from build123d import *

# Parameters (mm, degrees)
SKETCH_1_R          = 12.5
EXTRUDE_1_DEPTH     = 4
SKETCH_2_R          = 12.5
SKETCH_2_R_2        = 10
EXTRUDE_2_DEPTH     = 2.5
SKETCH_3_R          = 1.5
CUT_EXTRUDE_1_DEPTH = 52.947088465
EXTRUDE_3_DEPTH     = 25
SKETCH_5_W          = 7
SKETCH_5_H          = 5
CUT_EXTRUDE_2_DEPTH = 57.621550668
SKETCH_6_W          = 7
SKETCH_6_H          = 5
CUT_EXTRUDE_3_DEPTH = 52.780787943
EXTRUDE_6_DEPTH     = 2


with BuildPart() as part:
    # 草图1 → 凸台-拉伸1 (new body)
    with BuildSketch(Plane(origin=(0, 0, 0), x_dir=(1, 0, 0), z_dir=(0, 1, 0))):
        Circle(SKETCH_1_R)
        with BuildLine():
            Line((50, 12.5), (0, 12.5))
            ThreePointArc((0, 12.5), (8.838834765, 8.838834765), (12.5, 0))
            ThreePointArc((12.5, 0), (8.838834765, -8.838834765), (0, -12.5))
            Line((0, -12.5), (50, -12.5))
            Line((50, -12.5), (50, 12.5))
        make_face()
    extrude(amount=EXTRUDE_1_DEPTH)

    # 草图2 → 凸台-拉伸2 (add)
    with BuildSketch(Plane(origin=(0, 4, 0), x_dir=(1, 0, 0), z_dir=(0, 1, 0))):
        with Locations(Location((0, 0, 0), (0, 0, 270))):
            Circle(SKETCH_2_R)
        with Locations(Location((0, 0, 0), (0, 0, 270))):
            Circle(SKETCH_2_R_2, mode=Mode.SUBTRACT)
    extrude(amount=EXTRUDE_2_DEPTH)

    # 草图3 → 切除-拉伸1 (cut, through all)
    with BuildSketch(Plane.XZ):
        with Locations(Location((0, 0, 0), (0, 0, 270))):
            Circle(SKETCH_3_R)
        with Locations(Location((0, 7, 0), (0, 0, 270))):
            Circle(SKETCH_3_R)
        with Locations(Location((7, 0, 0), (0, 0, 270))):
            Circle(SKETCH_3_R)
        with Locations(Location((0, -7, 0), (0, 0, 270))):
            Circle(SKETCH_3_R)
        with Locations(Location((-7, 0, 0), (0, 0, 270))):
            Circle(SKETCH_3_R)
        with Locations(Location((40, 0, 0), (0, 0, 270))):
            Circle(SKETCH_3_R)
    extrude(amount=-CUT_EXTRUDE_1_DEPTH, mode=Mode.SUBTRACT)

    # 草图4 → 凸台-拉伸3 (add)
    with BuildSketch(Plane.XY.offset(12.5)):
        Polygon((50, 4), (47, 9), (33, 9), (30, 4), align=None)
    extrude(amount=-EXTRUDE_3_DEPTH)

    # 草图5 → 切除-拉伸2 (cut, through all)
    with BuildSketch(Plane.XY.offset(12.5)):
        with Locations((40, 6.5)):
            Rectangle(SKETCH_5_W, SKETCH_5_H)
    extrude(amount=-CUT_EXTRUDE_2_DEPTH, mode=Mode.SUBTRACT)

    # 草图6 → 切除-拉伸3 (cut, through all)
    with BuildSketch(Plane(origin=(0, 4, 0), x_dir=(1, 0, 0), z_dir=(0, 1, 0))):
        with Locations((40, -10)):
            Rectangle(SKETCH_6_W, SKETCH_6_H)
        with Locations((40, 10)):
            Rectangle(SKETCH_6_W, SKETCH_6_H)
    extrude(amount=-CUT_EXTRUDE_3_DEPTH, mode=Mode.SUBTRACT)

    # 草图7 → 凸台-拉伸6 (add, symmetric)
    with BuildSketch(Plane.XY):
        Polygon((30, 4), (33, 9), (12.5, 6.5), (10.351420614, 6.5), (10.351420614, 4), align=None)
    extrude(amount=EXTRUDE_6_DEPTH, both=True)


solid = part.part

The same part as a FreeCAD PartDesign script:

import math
import FreeCAD as App
import Part
import Sketcher

V = App.Vector
Q = App.Units.Quantity


def add_polygon(sketch, points):
    """Adds a closed chain of lines whose ends are joined by coincident constraints."""
    first, n = sketch.GeometryCount, len(points)
    for a, b in zip(points, points[1:] + points[:1]):
        sketch.addGeometry(Part.LineSegment(App.Vector(*a, 0), App.Vector(*b, 0)), False)
    for i in range(n):
        sketch.addConstraint(Sketcher.Constraint("Coincident", first + i, 2, first + (i + 1) % n, 1))

doc = App.newDocument("Part")
body = doc.addObject("PartDesign::Body", "Body")

# Sketch on XZ plane
sketch1 = doc.addObject("Sketcher::SketchObject", "Sketch")
body.addObject(sketch1)
sketch1.AttachmentSupport = (doc.XZ_Plane, [""])
sketch1.MapMode = "FlatFace"
sketch1.addGeometry(Part.ArcOfCircle(Part.Circle(V(0, 0, 0), V(0, 0, 1), 12), math.radians(90), math.radians(270)), False)
sketch1.addGeometry(Part.LineSegment(V(0, 12, 0), V(50, 12, 0)), False)
sketch1.addGeometry(Part.LineSegment(V(50, 12, 0), V(50, -12, 0)), False)
sketch1.addGeometry(Part.LineSegment(V(50, -12, 0), V(0, -12, 0)), False)
sketch1.addConstraint(Sketcher.Constraint("Tangent", 0, 1, 1, 1))
sketch1.addConstraint(Sketcher.Constraint("Coincident", 1, 2, 2, 1))
sketch1.addConstraint(Sketcher.Constraint("Coincident", 2, 2, 3, 1))
sketch1.addConstraint(Sketcher.Constraint("Tangent", 3, 2, 0, 2))
sketch1.addConstraint(Sketcher.Constraint("Horizontal", 1))
sketch1.addConstraint(Sketcher.Constraint("Vertical", 2))
sketch1.addConstraint(Sketcher.Constraint("Horizontal", 3))
sketch1.addConstraint(Sketcher.Constraint("Coincident", 0, 3, -1, 1))
sketch1.addConstraint(Sketcher.Constraint("Radius", 0, Q("12.5 mm")))
sketch1.addConstraint(Sketcher.Constraint("DistanceX", 1, 1, 1, 2, Q("50 mm")))
pad1 = doc.addObject("PartDesign::Pad", "Pad")
body.addObject(pad1)
pad1.Profile = sketch1
pad1.Length = 4
pad1.Reversed = True

# Sketch on XZ plane
sketch2 = doc.addObject("Sketcher::SketchObject", "Sketch001")
body.addObject(sketch2)
sketch2.AttachmentSupport = (doc.XZ_Plane, [""])
sketch2.MapMode = "FlatFace"
sketch2.AttachmentOffset = App.Placement(V(0, 0, -4), App.Rotation())
sketch2.addGeometry(Part.Circle(V(0, 0, 0), V(0, 0, 1), 12), False)
sketch2.addGeometry(Part.Circle(V(0, 0, 0), V(0, 0, 1), 10), False)
sketch2.addConstraint(Sketcher.Constraint("Coincident", 0, 3, -1, 1))
sketch2.addConstraint(Sketcher.Constraint("Coincident", 1, 3, -1, 1))
sketch2.addConstraint(Sketcher.Constraint("Diameter", 0, Q("25 mm")))
sketch2.addConstraint(Sketcher.Constraint("Diameter", 1, Q("20 mm")))
pad2 = doc.addObject("PartDesign::Pad", "Pad001")
body.addObject(pad2)
pad2.Profile = sketch2
pad2.Length = 2.5
pad2.Reversed = True

# Sketch on XZ plane
sketch3 = doc.addObject("Sketcher::SketchObject", "Sketch002")
body.addObject(sketch3)
sketch3.AttachmentSupport = (doc.XZ_Plane, [""])
sketch3.MapMode = "FlatFace"
sketch3.addGeometry(Part.Circle(V(0, 0, 0), V(0, 0, 1), 1.5), False)
sketch3.addGeometry(Part.Circle(V(0, 7, 0), V(0, 0, 1), 1.5), False)
sketch3.addGeometry(Part.Circle(V(7, 0, 0), V(0, 0, 1), 1.5), False)
sketch3.addGeometry(Part.Circle(V(0, -7, 0), V(0, 0, 1), 1.5), False)
sketch3.addGeometry(Part.Circle(V(-7, 0, 0), V(0, 0, 1), 1.5), False)
sketch3.addGeometry(Part.Circle(V(40, 0, 0), V(0, 0, 1), 1.5), False)
sketch3.addConstraint(Sketcher.Constraint("Coincident", 0, 3, -1, 1))
sketch3.addConstraint(Sketcher.Constraint("Equal", 0, 1))
sketch3.addConstraint(Sketcher.Constraint("Equal", 1, 2))
sketch3.addConstraint(Sketcher.Constraint("Equal", 2, 3))
sketch3.addConstraint(Sketcher.Constraint("Equal", 3, 4))
sketch3.addConstraint(Sketcher.Constraint("Equal", 4, 5))
sketch3.addConstraint(Sketcher.Constraint("Symmetric", 1, 3, 3, 3, -1, 1))
sketch3.addConstraint(Sketcher.Constraint("Symmetric", 2, 3, 4, 3, -1, 1))
sketch3.addConstraint(Sketcher.Constraint("PointOnObject", 1, 3, -2))
sketch3.addConstraint(Sketcher.Constraint("PointOnObject", 2, 3, -1))
sketch3.addConstraint(Sketcher.Constraint("PointOnObject", 5, 3, -1))
sketch3.addConstraint(Sketcher.Constraint("Diameter", 0, Q("3 mm")))
sketch3.addConstraint(Sketcher.Constraint("DistanceY", -1, 1, 1, 3, Q("7 mm")))
sketch3.addConstraint(Sketcher.Constraint("DistanceX", -1, 1, 2, 3, Q("7 mm")))
sketch3.addConstraint(Sketcher.Constraint("DistanceX", -1, 1, 5, 3, Q("40 mm")))
pocket1 = doc.addObject("PartDesign::Pocket", "Pocket")
body.addObject(pocket1)
pocket1.Profile = sketch3
pocket1.Type = "ThroughAll"

# Sketch on XY plane
sketch4 = doc.addObject("Sketcher::SketchObject", "Sketch003")
body.addObject(sketch4)
sketch4.AttachmentSupport = (doc.XY_Plane, [""])
sketch4.MapMode = "FlatFace"
sketch4.AttachmentOffset = App.Placement(V(0, 0, 12.5), App.Rotation())
add_polygon(sketch4, [(50, 4), (47, 9), (33, 9), (30, 4)])  # lines 0-3
sketch4.addConstraint(Sketcher.Constraint("Horizontal", 1))
sketch4.addConstraint(Sketcher.Constraint("Horizontal", 3))
sketch4.addConstraint(Sketcher.Constraint("Equal", 0, 2))
sketch4.addConstraint(Sketcher.Constraint("DistanceX", 1, 2, 1, 1, Q("14 mm")))
sketch4.addConstraint(Sketcher.Constraint("DistanceX", 3, 1, 3, 2, Q("20 mm")))
sketch4.addConstraint(Sketcher.Constraint("DistanceX", -1, 1, 0, 2, Q("47 mm")))
sketch4.addConstraint(Sketcher.Constraint("DistanceY", -1, 1, 0, 2, Q("9 mm")))
sketch4.addConstraint(Sketcher.Constraint("DistanceY", -1, 1, 2, 2, Q("4 mm")))
pad3 = doc.addObject("PartDesign::Pad", "Pad002")
body.addObject(pad3)
pad3.Profile = sketch4
pad3.Length = 25
pad3.Reversed = True

# Sketch on XY plane
sketch5 = doc.addObject("Sketcher::SketchObject", "Sketch004")
body.addObject(sketch5)
sketch5.AttachmentSupport = (doc.XY_Plane, [""])
sketch5.MapMode = "FlatFace"
sketch5.AttachmentOffset = App.Placement(V(0, 0, 12.5), App.Rotation())
add_polygon(sketch5, [(36, 9), (36, 4), (44, 4), (44, 9)])  # lines 0-3
sketch5.addConstraint(Sketcher.Constraint("Vertical", 0))
sketch5.addConstraint(Sketcher.Constraint("Horizontal", 1))
sketch5.addConstraint(Sketcher.Constraint("Vertical", 2))
sketch5.addConstraint(Sketcher.Constraint("Horizontal", 3))
sketch5.addConstraint(Sketcher.Constraint("DistanceX", 1, 1, 1, 2, Q("7 mm")))
sketch5.addConstraint(Sketcher.Constraint("DistanceY", 0, 2, 0, 1, Q("5 mm")))
sketch5.addConstraint(Sketcher.Constraint("DistanceY", -1, 1, 0, 2, Q("4 mm")))
sketch5.addConstraint(Sketcher.Constraint("DistanceX", -1, 1, 0, 2, Q("36.5 mm")))
pocket2 = doc.addObject("PartDesign::Pocket", "Pocket001")
body.addObject(pocket2)
pocket2.Profile = sketch5
pocket2.Type = "ThroughAll"

# Sketch on XZ plane
sketch6 = doc.addObject("Sketcher::SketchObject", "Sketch005")
body.addObject(sketch6)
sketch6.AttachmentSupport = (doc.XZ_Plane, [""])
sketch6.MapMode = "FlatFace"
sketch6.AttachmentOffset = App.Placement(V(0, 0, -4), App.Rotation())
add_polygon(sketch6, [(36, 8), (36, 12), (44, 12), (44, 8)])  # lines 0-3
add_polygon(sketch6, [(36, -12), (36, -8), (44, -8), (44, -12)])  # lines 4-7
sketch6.addConstraint(Sketcher.Constraint("Vertical", 0))
sketch6.addConstraint(Sketcher.Constraint("Horizontal", 1))
sketch6.addConstraint(Sketcher.Constraint("Vertical", 2))
sketch6.addConstraint(Sketcher.Constraint("Horizontal", 3))
sketch6.addConstraint(Sketcher.Constraint("Vertical", 4))
sketch6.addConstraint(Sketcher.Constraint("Horizontal", 5))
sketch6.addConstraint(Sketcher.Constraint("Vertical", 6))
sketch6.addConstraint(Sketcher.Constraint("Horizontal", 7))
sketch6.addConstraint(Sketcher.Constraint("Symmetric", 3, 2, 4, 2, -1))
sketch6.addConstraint(Sketcher.Constraint("Symmetric", 1, 2, 6, 2, -1))
sketch6.addConstraint(Sketcher.Constraint("DistanceX", 1, 1, 1, 2, Q("7 mm")))
sketch6.addConstraint(Sketcher.Constraint("DistanceY", 0, 1, 0, 2, Q("5 mm")))
sketch6.addConstraint(Sketcher.Constraint("DistanceY", 4, 2, 3, 2, Q("15 mm")))
sketch6.addConstraint(Sketcher.Constraint("DistanceX", -1, 1, 0, 2, Q("36.5 mm")))
pocket3 = doc.addObject("PartDesign::Pocket", "Pocket002")
body.addObject(pocket3)
pocket3.Profile = sketch6
pocket3.Type = "ThroughAll"
pocket3.Reversed = True

# Sketch on XY plane
sketch7 = doc.addObject("Sketcher::SketchObject", "Sketch006")
body.addObject(sketch7)
sketch7.AttachmentSupport = (doc.XY_Plane, [""])
sketch7.MapMode = "FlatFace"
add_polygon(sketch7, [(30, 4), (33, 9), (12.5, 6.5), (10.4, 6.5), (10.4, 4)])  # lines 0-4
sketch7.addConstraint(Sketcher.Constraint("Horizontal", 2))
sketch7.addConstraint(Sketcher.Constraint("Vertical", 3))
sketch7.addConstraint(Sketcher.Constraint("Horizontal", 4))
sketch7.addConstraint(Sketcher.Constraint("DistanceY", 3, 2, 3, 1, Q("2.5 mm")))
sketch7.addConstraint(Sketcher.Constraint("DistanceX", -1, 1, 0, 2, Q("33 mm")))
sketch7.addConstraint(Sketcher.Constraint("DistanceY", -1, 1, 0, 2, Q("9 mm")))
sketch7.addConstraint(Sketcher.Constraint("DistanceY", -1, 1, 3, 2, Q("4 mm")))
sketch7.addConstraint(Sketcher.Constraint("DistanceX", -1, 1, 4, 2, Q("30 mm")))
sketch7.addConstraint(Sketcher.Constraint("DistanceX", -1, 1, 1, 2, Q("12.5 mm")))
sketch7.addConstraint(Sketcher.Constraint("DistanceX", 2, 2, 2, 1, Q("2.148579 mm")))
pad4 = doc.addObject("PartDesign::Pad", "Pad003")
body.addObject(pad4)
pad4.Profile = sketch7
pad4.Length = 4
pad4.Midplane = True

doc.recompute()
